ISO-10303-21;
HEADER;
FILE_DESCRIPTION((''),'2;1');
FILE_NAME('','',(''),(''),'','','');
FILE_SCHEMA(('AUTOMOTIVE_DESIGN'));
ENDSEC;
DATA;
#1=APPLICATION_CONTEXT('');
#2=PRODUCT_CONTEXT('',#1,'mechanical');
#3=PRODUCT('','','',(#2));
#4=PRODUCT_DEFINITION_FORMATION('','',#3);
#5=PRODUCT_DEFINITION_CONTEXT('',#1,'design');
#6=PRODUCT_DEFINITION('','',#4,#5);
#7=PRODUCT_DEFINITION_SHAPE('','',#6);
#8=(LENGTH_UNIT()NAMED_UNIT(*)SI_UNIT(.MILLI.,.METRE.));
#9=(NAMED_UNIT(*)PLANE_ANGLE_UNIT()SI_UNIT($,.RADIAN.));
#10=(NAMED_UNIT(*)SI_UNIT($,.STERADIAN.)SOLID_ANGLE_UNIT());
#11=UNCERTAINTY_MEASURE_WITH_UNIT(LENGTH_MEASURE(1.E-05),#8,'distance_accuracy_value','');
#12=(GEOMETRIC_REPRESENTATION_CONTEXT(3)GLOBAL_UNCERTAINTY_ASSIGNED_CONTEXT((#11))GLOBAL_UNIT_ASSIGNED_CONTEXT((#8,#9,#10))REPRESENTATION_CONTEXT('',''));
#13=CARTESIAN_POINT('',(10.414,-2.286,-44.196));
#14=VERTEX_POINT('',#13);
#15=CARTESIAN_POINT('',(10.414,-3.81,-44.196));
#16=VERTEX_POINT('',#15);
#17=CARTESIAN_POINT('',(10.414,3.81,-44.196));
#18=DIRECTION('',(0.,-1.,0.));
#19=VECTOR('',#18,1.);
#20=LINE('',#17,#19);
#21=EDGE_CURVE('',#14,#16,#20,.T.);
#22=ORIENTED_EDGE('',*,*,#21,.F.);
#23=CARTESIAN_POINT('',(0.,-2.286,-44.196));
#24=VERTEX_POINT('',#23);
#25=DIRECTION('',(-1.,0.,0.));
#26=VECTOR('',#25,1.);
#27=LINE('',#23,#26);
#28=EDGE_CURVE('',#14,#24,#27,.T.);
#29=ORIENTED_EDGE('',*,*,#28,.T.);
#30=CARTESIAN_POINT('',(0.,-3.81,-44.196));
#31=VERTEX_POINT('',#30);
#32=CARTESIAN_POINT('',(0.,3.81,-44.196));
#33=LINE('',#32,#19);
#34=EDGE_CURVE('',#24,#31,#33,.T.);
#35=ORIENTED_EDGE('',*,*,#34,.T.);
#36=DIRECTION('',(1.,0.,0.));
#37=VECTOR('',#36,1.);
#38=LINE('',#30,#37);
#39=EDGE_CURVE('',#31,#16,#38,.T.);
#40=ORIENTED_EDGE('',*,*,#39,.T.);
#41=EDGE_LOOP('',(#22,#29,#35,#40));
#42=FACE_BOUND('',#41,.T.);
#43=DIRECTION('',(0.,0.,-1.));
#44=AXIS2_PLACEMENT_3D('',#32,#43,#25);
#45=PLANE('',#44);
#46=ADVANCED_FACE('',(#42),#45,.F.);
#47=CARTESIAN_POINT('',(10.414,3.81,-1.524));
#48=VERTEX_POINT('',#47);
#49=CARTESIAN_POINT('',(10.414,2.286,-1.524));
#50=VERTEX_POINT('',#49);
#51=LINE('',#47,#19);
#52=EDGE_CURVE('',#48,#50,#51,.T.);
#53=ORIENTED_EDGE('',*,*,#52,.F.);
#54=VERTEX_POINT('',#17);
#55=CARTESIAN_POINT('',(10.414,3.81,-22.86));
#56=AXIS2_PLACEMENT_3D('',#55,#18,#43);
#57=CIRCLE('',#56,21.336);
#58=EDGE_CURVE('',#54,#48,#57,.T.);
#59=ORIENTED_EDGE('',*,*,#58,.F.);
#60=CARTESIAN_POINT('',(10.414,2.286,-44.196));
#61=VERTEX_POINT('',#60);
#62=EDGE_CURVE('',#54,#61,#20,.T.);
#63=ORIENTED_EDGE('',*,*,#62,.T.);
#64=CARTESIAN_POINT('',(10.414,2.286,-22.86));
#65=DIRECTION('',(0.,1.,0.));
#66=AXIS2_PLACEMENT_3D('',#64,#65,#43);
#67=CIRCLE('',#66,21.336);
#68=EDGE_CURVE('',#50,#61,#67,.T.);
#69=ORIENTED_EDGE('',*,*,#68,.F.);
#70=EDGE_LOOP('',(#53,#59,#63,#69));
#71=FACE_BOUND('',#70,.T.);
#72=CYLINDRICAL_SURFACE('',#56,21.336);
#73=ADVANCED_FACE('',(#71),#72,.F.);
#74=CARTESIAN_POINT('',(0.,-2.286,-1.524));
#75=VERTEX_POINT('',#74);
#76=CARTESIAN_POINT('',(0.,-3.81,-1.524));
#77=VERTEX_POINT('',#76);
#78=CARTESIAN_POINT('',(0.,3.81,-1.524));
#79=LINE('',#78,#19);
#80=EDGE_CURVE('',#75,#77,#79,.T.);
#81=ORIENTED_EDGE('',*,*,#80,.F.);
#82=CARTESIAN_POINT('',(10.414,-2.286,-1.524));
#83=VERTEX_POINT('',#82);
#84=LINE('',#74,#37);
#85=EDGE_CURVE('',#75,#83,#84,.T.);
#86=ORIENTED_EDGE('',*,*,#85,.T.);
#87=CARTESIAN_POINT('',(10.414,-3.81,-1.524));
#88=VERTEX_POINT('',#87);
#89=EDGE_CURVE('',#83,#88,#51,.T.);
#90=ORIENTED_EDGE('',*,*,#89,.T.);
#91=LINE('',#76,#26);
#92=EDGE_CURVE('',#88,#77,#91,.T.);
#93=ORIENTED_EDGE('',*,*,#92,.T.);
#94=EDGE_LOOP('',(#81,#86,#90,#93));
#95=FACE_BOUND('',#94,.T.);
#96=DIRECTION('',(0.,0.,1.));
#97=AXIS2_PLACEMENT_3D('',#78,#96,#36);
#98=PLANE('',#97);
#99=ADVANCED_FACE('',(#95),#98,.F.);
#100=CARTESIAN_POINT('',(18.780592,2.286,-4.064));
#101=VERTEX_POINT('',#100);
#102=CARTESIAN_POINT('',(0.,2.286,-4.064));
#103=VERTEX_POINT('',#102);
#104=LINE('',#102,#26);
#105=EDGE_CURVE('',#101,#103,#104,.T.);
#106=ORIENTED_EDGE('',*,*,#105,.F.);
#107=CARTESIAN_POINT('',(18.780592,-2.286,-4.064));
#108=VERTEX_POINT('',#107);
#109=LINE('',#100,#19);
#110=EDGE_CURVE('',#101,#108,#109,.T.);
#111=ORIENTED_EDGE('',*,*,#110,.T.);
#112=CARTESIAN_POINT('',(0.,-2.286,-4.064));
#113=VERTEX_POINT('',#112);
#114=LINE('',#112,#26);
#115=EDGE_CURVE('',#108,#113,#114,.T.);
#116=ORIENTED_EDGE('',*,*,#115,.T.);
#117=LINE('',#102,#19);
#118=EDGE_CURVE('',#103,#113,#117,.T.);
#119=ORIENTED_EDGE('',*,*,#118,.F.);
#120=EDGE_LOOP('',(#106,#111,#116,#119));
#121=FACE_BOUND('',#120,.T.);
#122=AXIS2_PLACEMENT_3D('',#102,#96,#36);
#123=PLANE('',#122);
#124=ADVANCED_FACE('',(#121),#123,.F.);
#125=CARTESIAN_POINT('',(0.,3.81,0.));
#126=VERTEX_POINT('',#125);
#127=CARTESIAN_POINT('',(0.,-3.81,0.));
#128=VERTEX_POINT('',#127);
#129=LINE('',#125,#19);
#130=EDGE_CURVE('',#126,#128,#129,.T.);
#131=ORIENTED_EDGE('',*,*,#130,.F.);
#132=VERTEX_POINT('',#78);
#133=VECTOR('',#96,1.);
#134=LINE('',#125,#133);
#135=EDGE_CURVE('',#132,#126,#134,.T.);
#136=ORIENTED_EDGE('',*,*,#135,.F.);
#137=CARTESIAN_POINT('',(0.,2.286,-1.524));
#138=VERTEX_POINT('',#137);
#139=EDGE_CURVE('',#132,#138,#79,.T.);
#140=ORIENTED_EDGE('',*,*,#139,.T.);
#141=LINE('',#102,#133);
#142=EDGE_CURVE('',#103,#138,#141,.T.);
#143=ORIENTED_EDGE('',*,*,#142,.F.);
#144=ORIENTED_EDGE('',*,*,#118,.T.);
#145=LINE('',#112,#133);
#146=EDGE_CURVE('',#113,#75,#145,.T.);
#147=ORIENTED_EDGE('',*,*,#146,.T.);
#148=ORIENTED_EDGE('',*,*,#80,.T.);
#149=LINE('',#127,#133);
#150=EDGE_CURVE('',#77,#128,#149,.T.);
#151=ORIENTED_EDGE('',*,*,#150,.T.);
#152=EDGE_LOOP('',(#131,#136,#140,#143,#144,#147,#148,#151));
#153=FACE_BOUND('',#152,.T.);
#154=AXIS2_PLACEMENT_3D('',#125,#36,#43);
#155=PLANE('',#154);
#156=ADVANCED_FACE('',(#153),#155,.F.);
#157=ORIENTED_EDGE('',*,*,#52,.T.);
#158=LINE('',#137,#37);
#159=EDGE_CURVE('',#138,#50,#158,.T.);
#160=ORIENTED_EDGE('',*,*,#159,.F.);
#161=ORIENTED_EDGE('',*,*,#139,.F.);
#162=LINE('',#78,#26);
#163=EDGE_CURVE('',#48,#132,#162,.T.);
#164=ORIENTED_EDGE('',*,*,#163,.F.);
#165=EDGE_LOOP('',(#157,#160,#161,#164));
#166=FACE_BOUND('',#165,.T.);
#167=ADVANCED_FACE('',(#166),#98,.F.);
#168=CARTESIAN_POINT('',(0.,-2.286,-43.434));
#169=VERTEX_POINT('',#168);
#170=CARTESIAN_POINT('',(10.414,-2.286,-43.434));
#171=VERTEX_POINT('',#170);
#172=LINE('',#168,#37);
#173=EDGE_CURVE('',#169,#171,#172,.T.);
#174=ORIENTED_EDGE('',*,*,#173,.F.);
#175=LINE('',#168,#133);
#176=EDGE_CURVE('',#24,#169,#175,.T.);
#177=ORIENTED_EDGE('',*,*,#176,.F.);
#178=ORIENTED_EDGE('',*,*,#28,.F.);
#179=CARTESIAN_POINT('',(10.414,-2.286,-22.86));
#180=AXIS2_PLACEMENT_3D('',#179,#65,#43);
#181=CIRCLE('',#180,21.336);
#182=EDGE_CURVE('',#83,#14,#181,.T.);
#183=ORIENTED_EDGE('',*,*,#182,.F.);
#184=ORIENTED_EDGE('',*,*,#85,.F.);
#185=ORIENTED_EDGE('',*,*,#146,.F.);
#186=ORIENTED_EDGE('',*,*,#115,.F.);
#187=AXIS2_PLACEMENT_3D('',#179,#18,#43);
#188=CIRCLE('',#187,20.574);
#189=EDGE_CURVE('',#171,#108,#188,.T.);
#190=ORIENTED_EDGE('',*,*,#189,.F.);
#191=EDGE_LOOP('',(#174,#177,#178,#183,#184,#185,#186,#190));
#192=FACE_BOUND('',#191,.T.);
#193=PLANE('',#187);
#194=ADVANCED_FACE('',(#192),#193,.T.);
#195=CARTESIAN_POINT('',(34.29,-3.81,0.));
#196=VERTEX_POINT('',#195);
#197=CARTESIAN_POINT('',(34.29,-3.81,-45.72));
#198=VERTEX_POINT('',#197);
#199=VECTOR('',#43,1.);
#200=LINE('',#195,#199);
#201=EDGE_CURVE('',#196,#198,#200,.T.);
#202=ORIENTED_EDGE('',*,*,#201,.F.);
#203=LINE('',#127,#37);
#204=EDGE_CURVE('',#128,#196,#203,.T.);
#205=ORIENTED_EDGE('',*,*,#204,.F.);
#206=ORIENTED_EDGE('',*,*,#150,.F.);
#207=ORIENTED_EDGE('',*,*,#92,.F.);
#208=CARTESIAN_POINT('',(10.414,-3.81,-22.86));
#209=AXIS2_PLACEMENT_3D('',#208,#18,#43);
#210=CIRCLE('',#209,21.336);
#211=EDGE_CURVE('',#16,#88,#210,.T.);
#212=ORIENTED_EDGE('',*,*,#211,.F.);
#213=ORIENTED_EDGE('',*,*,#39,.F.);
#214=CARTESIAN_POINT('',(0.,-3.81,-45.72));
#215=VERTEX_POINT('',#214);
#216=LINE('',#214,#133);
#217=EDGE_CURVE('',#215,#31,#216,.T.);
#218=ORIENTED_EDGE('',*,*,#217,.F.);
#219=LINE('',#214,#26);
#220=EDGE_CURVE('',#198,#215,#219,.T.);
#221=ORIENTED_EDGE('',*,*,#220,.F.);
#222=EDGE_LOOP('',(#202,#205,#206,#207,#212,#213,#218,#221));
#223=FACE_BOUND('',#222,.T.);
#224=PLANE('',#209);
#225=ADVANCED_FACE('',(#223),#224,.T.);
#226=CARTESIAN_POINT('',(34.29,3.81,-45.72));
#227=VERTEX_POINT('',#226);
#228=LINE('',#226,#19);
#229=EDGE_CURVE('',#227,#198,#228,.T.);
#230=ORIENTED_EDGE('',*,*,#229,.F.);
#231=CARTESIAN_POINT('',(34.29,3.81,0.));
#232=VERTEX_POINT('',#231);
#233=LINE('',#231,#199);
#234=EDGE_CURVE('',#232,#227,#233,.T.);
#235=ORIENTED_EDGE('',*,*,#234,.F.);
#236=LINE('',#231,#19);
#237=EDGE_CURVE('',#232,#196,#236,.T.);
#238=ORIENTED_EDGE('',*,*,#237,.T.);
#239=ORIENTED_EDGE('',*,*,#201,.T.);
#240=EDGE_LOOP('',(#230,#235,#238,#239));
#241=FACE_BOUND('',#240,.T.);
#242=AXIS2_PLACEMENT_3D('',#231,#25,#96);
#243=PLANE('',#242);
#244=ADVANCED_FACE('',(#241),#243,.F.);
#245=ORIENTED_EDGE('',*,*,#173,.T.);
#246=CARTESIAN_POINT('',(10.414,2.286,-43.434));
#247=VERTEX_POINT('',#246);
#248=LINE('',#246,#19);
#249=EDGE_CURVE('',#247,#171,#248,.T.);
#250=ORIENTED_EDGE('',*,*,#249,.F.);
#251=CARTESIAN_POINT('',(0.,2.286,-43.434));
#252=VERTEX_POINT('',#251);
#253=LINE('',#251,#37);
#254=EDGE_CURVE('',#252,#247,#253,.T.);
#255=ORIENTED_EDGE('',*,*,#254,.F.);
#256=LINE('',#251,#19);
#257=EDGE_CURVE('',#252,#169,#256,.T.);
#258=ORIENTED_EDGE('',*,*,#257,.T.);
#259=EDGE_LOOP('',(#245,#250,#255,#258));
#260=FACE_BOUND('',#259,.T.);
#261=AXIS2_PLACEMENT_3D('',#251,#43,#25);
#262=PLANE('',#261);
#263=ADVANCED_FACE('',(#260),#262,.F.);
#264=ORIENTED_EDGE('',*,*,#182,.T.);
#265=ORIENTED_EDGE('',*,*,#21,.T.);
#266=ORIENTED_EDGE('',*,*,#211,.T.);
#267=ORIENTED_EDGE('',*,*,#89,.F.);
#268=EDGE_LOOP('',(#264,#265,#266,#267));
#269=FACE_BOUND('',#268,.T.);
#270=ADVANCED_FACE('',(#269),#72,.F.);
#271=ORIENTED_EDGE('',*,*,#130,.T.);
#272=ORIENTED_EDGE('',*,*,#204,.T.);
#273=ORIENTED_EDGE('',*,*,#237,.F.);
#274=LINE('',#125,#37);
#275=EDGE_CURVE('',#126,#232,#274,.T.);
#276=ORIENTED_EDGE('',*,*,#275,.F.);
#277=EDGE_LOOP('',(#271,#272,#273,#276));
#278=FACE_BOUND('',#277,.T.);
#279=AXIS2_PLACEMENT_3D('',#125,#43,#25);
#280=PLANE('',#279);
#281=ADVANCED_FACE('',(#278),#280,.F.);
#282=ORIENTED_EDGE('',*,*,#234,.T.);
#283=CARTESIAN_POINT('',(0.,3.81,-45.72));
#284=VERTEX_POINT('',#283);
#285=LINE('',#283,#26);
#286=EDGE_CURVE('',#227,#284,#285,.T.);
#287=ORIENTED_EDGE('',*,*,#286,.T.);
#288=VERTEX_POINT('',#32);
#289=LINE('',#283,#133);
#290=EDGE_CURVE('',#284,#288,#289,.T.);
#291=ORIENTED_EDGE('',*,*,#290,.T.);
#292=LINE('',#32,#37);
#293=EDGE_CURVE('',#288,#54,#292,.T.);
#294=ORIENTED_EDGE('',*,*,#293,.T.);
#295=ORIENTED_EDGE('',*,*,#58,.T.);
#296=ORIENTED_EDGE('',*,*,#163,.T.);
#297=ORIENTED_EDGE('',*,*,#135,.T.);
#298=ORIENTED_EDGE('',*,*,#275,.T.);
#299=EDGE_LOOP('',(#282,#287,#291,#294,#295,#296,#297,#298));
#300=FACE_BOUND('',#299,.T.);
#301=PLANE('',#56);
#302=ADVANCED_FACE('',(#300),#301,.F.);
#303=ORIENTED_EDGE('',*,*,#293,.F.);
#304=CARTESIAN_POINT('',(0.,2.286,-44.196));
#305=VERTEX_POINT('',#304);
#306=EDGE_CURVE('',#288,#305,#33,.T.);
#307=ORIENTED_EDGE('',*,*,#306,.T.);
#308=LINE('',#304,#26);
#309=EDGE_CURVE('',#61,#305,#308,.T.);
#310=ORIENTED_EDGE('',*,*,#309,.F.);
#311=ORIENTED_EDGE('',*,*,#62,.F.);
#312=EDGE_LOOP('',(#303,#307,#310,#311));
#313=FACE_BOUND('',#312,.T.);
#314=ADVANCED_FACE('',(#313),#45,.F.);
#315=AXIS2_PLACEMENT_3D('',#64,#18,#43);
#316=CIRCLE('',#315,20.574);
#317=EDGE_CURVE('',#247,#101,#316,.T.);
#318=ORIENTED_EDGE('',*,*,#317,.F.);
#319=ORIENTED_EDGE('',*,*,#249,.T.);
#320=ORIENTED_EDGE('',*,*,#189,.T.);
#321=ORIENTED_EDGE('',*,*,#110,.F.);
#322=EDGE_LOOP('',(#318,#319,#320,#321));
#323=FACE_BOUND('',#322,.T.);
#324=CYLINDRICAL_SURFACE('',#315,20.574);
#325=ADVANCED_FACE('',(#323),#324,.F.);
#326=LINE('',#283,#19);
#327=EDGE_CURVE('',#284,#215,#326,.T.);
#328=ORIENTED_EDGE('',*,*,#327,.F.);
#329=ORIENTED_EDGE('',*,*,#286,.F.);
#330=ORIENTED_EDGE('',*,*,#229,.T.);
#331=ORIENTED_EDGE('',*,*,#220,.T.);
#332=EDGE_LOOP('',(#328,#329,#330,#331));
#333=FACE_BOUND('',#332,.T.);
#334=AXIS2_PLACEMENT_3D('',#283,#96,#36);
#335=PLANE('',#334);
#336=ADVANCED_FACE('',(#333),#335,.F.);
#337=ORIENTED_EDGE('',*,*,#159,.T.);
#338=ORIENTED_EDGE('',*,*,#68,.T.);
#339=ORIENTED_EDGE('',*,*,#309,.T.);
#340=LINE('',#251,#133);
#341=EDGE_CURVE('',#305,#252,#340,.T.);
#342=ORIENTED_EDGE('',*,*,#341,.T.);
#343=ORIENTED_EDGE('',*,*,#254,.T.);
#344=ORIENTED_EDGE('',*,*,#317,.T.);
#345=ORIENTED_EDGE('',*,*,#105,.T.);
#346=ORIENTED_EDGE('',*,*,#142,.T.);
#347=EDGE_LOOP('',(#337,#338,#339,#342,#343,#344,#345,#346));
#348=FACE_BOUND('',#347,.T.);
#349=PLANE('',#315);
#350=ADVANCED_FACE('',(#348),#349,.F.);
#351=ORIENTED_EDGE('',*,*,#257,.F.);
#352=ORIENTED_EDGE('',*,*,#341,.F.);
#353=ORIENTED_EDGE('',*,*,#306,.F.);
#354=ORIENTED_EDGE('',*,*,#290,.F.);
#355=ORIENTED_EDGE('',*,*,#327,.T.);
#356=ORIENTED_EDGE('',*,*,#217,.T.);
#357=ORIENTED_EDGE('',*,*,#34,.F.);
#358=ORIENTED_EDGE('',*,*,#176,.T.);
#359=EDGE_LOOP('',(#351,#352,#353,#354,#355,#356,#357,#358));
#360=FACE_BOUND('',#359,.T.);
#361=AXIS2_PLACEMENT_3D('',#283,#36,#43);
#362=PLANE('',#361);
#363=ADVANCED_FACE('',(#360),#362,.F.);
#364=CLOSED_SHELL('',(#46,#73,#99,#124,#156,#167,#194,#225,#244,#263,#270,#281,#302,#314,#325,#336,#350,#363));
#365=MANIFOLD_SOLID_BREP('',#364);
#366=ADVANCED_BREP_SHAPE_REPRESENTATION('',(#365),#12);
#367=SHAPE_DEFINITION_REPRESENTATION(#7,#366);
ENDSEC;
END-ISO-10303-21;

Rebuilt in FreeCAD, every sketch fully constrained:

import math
import FreeCAD as App
import Part
import Sketcher

V = App.Vector
Q = App.Units.Quantity

doc = App.newDocument("Part")
body = doc.addObject("PartDesign::Body", "Body")

# Sketch on XZ plane
sketch1 = body.newObject("Sketcher::SketchObject", "Sketch")
sketch1.AttachmentSupport = (doc.getObject("XZ_Plane"), [""])
sketch1.MapMode = "FlatFace"
sketch1.addGeometry(Part.LineSegment(V(0, -45.72, 0), V(0, -44.196, 0)), False)
sketch1.addGeometry(Part.LineSegment(V(0, -44.196, 0), V(10.414, -44.196, 0)), False)
sketch1.addGeometry(Part.ArcOfCircle(Part.Circle(V(10.414, -22.86, 0), V(0, 0, 1), 21.336), math.radians(-90), math.radians(90)), False)
sketch1.addGeometry(Part.LineSegment(V(10.414, -1.524, 0), V(0, -1.524, 0)), False)
sketch1.addGeometry(Part.LineSegment(V(0, -1.524, 0), V(0, 0, 0)), False)
sketch1.addGeometry(Part.LineSegment(V(0, 0, 0), V(34.29, 0, 0)), False)
sketch1.addGeometry(Part.LineSegment(V(34.29, 0, 0), V(34.29, -45.72, 0)), False)
sketch1.addGeometry(Part.LineSegment(V(34.29, -45.72, 0), V(0, -45.72, 0)), False)
sketch1.addConstraint(Sketcher.Constraint("Coincident", 0, 2, 1, 1))
sketch1.addConstraint(Sketcher.Constraint("Tangent", 1, 2, 2, 1))
sketch1.addConstraint(Sketcher.Constraint("Tangent", 2, 2, 3, 1))
sketch1.addConstraint(Sketcher.Constraint("Coincident", 3, 2, 4, 1))
sketch1.addConstraint(Sketcher.Constraint("Coincident", 4, 2, 5, 1))
sketch1.addConstraint(Sketcher.Constraint("Coincident", 5, 2, 6, 1))
sketch1.addConstraint(Sketcher.Constraint("Coincident", 6, 2, 7, 1))
sketch1.addConstraint(Sketcher.Constraint("Coincident", 7, 2, 0, 1))
sketch1.addConstraint(Sketcher.Constraint("Vertical", 0))
sketch1.addConstraint(Sketcher.Constraint("Horizontal", 1))
sketch1.addConstraint(Sketcher.Constraint("Horizontal", 3))
sketch1.addConstraint(Sketcher.Constraint("Vertical", 4))
sketch1.addConstraint(Sketcher.Constraint("Horizontal", 5))
sketch1.addConstraint(Sketcher.Constraint("Vertical", 6))
sketch1.addConstraint(Sketcher.Constraint("Horizontal", 7))
sketch1.addConstraint(Sketcher.Constraint("Coincident", 4, 2, -1, 1))
sketch1.addConstraint(Sketcher.Constraint("PointOnObject", 0, 2, -2))
sketch1.addConstraint(Sketcher.Constraint("Equal", 0, 4))
sketch1.addConstraint(Sketcher.Constraint("Radius", 2, Q("0.84 in")))
sketch1.addConstraint(Sketcher.Constraint("DistanceY", 6, 2, 6, 1, Q("1.8 in")))
sketch1.addConstraint(Sketcher.Constraint("DistanceX", 1, 1, 1, 2, Q("0.41 in")))
sketch1.addConstraint(Sketcher.Constraint("DistanceX", 5, 1, 5, 2, Q("1.35 in")))
pad1 = body.newObject("PartDesign::Pad", "Pad")
pad1.Profile = sketch1
pad1.Length = Q("0.3 in")
pad1.Midplane = True

# Sketch on XZ plane
sketch2 = body.newObject("Sketcher::SketchObject", "Sketch001")
sketch2.AttachmentSupport = (doc.getObject("XZ_Plane"), [""])
sketch2.MapMode = "FlatFace"
sketch2.addGeometry(Part.LineSegment(V(18.780592, -4.064, 0), V(0, -4.064, 0)), False)
sketch2.addGeometry(Part.LineSegment(V(0, -4.064, 0), V(0, -1.524, 0)), False)
sketch2.addGeometry(Part.LineSegment(V(0, -1.524, 0), V(10.414, -1.524, 0)), False)
sketch2.addGeometry(Part.ArcOfCircle(Part.Circle(V(10.414, -22.86, 0), V(0, 0, 1), 21.336), math.radians(-90), math.radians(90)), False)
sketch2.addGeometry(Part.LineSegment(V(10.414, -44.196, 0), V(0, -44.196, 0)), False)
sketch2.addGeometry(Part.LineSegment(V(0, -44.196, 0), V(0, -43.434, 0)), False)
sketch2.addGeometry(Part.LineSegment(V(0, -43.434, 0), V(10.414, -43.434, 0)), False)
sketch2.addGeometry(Part.ArcOfCircle(Part.Circle(V(10.414, -22.86, 0), V(0, 0, 1), 20.574), math.radians(-90), math.radians(66.004901)), False)
sketch2.addConstraint(Sketcher.Constraint("Coincident", 0, 2, 1, 1))
sketch2.addConstraint(Sketcher.Constraint("Coincident", 1, 2, 2, 1))
sketch2.addConstraint(Sketcher.Constraint("Tangent", 2, 2, 3, 2))
sketch2.addConstraint(Sketcher.Constraint("Tangent", 3, 1, 4, 1))
sketch2.addConstraint(Sketcher.Constraint("Coincident", 4, 2, 5, 1))
sketch2.addConstraint(Sketcher.Constraint("Coincident", 5, 2, 6, 1))
sketch2.addConstraint(Sketcher.Constraint("Tangent", 6, 2, 7, 1))
sketch2.addConstraint(Sketcher.Constraint("Coincident", 7, 2, 0, 1))
sketch2.addConstraint(Sketcher.Constraint("Horizontal", 0))
sketch2.addConstraint(Sketcher.Constraint("Vertical", 1))
sketch2.addConstraint(Sketcher.Constraint("Horizontal", 2))
sketch2.addConstraint(Sketcher.Constraint("Horizontal", 4))
sketch2.addConstraint(Sketcher.Constraint("Vertical", 5))
sketch2.addConstraint(Sketcher.Constraint("Horizontal", 6))
sketch2.addConstraint(Sketcher.Constraint("Coincident", 7, 3, 3, 3))
sketch2.addConstraint(Sketcher.Constraint("PointOnObject", 0, 2, -2))
sketch2.addConstraint(Sketcher.Constraint("PointOnObject", 4, 2, -2))
sketch2.addConstraint(Sketcher.Constraint("Radius", 3, Q("0.84 in")))
sketch2.addConstraint(Sketcher.Constraint("Radius", 7, Q("0.81 in")))
sketch2.addConstraint(Sketcher.Constraint("DistanceY", 1, 1, 1, 2, Q("0.1 in")))
sketch2.addConstraint(Sketcher.Constraint("DistanceX", 2, 1, 2, 2, Q("0.41 in")))
sketch2.addConstraint(Sketcher.Constraint("DistanceY", 3, 3, -1, 1, Q("0.9 in")))
pad2 = body.newObject("PartDesign::Pad", "Pad001")
pad2.Profile = sketch2
pad2.Length = Q("0.18 in")
pad2.Midplane = True

doc.recompute()
